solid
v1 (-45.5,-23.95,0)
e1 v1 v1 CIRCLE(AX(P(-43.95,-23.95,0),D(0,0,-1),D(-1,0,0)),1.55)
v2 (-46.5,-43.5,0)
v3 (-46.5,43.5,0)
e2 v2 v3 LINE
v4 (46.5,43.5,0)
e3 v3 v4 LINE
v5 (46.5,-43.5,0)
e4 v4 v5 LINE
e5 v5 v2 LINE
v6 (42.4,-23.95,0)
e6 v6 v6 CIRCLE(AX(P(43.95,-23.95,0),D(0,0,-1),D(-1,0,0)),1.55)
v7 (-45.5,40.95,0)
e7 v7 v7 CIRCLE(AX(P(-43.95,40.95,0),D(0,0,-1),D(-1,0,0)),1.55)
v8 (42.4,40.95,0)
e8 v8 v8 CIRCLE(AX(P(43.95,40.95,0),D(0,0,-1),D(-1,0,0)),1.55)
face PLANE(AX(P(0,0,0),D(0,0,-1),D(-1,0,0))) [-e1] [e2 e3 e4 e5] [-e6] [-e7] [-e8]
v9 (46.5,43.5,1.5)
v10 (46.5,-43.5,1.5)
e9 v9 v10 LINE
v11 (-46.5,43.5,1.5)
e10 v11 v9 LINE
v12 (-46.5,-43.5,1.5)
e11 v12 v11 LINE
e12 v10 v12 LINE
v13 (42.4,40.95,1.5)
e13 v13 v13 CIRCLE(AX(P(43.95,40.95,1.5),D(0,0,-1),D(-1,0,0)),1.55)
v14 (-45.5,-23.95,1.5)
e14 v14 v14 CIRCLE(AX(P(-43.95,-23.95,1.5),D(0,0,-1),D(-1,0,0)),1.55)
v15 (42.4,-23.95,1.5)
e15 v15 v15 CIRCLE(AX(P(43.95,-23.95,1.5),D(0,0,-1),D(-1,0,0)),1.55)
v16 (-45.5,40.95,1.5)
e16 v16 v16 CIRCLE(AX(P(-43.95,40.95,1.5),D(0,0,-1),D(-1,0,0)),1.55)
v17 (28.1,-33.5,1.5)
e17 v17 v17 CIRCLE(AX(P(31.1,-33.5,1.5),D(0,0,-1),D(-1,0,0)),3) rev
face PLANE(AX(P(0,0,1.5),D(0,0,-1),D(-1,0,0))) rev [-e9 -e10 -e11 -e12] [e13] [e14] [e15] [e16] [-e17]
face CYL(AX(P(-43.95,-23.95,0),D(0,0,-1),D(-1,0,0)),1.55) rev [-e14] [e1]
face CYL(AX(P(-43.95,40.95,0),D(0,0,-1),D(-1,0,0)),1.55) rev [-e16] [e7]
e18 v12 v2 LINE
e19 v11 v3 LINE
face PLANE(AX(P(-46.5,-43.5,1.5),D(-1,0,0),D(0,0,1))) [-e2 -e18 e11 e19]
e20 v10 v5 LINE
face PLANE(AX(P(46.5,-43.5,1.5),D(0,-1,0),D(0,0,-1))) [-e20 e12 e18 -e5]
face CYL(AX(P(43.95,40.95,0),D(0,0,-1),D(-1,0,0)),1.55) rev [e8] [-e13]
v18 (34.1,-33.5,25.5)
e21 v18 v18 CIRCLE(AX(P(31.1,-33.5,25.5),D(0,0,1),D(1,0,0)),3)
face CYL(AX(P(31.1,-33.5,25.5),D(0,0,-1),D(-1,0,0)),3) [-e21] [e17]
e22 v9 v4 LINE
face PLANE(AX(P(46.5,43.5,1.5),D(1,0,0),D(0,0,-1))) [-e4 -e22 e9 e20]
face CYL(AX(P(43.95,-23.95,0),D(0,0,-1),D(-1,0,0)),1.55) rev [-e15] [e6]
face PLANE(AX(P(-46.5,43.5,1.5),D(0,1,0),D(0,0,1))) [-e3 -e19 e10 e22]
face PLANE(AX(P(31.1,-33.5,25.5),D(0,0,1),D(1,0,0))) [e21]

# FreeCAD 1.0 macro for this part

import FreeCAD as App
import Part
import Sketcher
Q = App.Units.Quantity

doc = App.newDocument("Part")
body = doc.addObject("PartDesign::Body", "Body")

# Sketch on XY plane
sketch1 = doc.addObject("Sketcher::SketchObject", "Sketch")
body.addObject(sketch1)
sketch1.AttachmentSupport = (doc.XY_Plane, [""])
sketch1.MapMode = "FlatFace"
sketch1.addGeometry([
    Part.LineSegment(App.Vector(46, 44, 0), App.Vector(46, -44, 0)),
    Part.LineSegment(App.Vector(46, -44, 0), App.Vector(-46, -44, 0)),
    Part.LineSegment(App.Vector(-46, -44, 0), App.Vector(-46, 44, 0)),
    Part.LineSegment(App.Vector(-46, 44, 0), App.Vector(46, 44, 0)),
], False)
sketch1.addConstraint([
    Sketcher.Constraint("Coincident", 0, 2, 1, 1),
    Sketcher.Constraint("Coincident", 1, 2, 2, 1),
    Sketcher.Constraint("Coincident", 2, 2, 3, 1),
    Sketcher.Constraint("Coincident", 3, 2, 0, 1),
    Sketcher.Constraint("Vertical", 0),
    Sketcher.Constraint("Horizontal", 1),
    Sketcher.Constraint("Vertical", 2),
    Sketcher.Constraint("Horizontal", 3),
    Sketcher.Constraint("Symmetric", 0, 2, 2, 2, -1, 1),
    Sketcher.Constraint("DistanceX", 1, 2, 1, 1, Q("93 mm")),
    Sketcher.Constraint("DistanceY", 0, 2, 0, 1, Q("87 mm")),
])
pad1 = doc.addObject("PartDesign::Pad", "Pad")
body.addObject(pad1)
pad1.Profile = sketch1
pad1.Length = 1.5

# Sketch on XY plane
sketch2 = doc.addObject("Sketcher::SketchObject", "Sketch001")
body.addObject(sketch2)
sketch2.AttachmentSupport = (doc.XY_Plane, [""])
sketch2.MapMode = "FlatFace"
sketch2.addGeometry([
    Part.Circle(App.Vector(-44, -23.9, 0), App.Vector(0, 0, 1), 1.6),
    Part.Circle(App.Vector(44, -23.9, 0), App.Vector(0, 0, 1), 1.6),
    Part.Circle(App.Vector(-44, 41, 0), App.Vector(0, 0, 1), 1.6),
    Part.Circle(App.Vector(44, 41, 0), App.Vector(0, 0, 1), 1.6),
], False)
sketch2.addConstraint([
    Sketcher.Constraint("Equal", 0, 1),
    Sketcher.Constraint("Equal", 1, 2),
    Sketcher.Constraint("Equal", 2, 3),
    Sketcher.Constraint("Symmetric", 0, 3, 1, 3, -2),
    Sketcher.Constraint("Symmetric", 2, 3, 3, 3, -2),
    Sketcher.Constraint("Vertical", 0, 3, 2, 3),
    Sketcher.Constraint("Diameter", 0, Q("3.1 mm")),
    Sketcher.Constraint("DistanceX", 0, 3, 1, 3, Q("87.9 mm")),
    Sketcher.Constraint("DistanceY", 0, 3, 2, 3, Q("64.9 mm")),
    Sketcher.Constraint("DistanceY", 0, 3, -1, 1, Q("23.95 mm")),
])
doc.recompute()
hole = doc.addObject("PartDesign::Hole", "Hole")
body.addObject(hole)
hole.Profile = sketch2
hole.ThreadType = "None"
hole.Diameter = 3.1
hole.DepthType = "ThroughAll"
hole.Reversed = True

# Sketch on XY plane
sketch3 = doc.addObject("Sketcher::SketchObject", "Sketch002")
body.addObject(sketch3)
sketch3.AttachmentSupport = (doc.XY_Plane, [""])
sketch3.MapMode = "FlatFace"
sketch3.AttachmentOffset = App.Placement(App.Vector(0, 0, 1.5), App.Rotation())
sketch3.addGeometry(Part.Circle(App.Vector(31.1, -33.5, 0), App.Vector(0, 0, 1), 3), False)
sketch3.addConstraint([
    Sketcher.Constraint("Diameter", 0, Q("6 mm")),
    Sketcher.Constraint("DistanceX", -1, 1, 0, 3, Q("31.1 mm")),
    Sketcher.Constraint("DistanceY", 0, 3, -1, 1, Q("33.5 mm")),
])
pad2 = doc.addObject("PartDesign::Pad", "Pad001")
body.addObject(pad2)
pad2.Profile = sketch3
pad2.Length = 24

doc.recompute()
